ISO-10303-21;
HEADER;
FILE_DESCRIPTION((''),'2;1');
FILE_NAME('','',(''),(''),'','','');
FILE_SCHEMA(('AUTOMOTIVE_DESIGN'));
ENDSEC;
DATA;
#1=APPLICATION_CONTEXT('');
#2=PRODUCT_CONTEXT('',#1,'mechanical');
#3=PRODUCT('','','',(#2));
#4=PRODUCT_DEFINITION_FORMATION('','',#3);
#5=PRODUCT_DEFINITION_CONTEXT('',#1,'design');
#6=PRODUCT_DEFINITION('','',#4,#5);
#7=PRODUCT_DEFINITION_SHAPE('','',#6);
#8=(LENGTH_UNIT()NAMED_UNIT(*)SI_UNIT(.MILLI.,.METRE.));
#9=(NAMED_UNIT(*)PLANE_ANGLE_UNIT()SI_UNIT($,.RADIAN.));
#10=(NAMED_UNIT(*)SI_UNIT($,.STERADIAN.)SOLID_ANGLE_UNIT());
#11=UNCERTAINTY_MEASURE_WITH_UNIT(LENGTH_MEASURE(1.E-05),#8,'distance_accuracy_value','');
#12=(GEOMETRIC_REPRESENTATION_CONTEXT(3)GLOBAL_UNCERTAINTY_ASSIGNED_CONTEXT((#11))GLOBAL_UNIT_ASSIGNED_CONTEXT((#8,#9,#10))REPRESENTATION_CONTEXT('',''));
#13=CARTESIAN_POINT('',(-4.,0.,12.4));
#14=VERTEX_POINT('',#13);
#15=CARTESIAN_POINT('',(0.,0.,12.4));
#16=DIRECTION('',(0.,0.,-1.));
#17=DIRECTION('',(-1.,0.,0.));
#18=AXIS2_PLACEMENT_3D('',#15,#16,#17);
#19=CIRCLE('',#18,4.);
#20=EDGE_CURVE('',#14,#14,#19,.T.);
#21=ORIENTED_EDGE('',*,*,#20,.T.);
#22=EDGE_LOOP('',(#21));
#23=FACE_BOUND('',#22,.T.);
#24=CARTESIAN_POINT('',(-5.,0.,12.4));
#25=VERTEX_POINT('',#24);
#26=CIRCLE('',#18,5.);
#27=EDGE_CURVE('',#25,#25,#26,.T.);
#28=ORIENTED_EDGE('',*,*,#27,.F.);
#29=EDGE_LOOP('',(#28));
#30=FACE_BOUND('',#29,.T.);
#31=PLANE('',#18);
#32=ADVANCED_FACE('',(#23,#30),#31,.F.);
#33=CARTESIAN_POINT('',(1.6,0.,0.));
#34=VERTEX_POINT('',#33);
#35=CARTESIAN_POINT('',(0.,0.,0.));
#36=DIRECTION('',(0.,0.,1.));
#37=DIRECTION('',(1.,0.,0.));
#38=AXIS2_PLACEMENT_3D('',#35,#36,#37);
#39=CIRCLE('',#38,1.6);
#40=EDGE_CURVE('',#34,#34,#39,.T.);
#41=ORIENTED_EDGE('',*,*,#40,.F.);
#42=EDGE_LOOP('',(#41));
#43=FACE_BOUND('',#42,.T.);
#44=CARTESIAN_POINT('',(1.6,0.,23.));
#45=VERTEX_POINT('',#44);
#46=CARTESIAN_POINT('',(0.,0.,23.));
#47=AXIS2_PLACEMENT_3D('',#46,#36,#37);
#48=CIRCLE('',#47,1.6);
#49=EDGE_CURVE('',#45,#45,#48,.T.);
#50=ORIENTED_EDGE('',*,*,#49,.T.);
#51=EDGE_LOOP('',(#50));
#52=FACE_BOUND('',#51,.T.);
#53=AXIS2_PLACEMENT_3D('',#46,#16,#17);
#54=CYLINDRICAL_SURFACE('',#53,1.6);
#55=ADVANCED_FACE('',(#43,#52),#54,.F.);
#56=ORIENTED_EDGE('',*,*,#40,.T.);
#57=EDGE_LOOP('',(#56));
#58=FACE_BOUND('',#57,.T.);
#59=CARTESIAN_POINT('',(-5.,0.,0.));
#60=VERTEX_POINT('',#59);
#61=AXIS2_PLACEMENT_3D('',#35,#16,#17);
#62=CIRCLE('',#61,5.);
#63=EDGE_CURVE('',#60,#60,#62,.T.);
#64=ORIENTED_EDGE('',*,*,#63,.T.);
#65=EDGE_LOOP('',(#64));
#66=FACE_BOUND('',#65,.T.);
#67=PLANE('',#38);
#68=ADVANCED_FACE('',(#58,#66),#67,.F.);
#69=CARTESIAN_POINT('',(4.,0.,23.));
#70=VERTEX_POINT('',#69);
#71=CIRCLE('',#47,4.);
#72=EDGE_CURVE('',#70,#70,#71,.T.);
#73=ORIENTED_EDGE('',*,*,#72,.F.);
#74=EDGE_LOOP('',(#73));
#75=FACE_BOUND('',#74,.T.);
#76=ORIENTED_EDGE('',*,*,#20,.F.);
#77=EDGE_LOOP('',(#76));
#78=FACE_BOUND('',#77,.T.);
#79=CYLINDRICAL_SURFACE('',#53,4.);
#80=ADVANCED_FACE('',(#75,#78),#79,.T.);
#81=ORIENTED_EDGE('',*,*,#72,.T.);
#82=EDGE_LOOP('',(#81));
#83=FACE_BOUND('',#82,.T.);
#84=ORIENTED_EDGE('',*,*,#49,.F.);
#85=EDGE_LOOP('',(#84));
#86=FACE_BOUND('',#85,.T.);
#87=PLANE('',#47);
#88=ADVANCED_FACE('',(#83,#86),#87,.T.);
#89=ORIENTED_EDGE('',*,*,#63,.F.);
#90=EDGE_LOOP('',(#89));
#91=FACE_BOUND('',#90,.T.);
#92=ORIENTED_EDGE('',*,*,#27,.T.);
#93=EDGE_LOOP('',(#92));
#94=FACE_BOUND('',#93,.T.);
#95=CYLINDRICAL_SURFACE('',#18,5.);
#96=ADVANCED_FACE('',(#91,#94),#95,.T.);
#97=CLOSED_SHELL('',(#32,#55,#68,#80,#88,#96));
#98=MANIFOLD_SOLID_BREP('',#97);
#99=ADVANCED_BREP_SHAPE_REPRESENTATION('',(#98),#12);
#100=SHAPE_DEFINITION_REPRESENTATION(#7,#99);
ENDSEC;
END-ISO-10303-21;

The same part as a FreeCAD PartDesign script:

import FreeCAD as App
import Part
import Sketcher
from FreeCAD import Vector

doc = App.newDocument("Part")
params = doc.addObject("Spreadsheet::Sheet", "Params")
for row, (alias, value) in enumerate([
    ("sketch1_diameter", "8 mm"),
    ("sketch1_diameter2", "3.2 mm"),
    ("pad1_length", "23 mm"),
    ("sketch2_diameter", "10 mm"),
    ("sketch2_diameter2", "8 mm"),
    ("pad2_length", "12.4 mm"),
], start=1):
    params.set(f"A{row}", alias)
    params.set(f"B{row}", "=" + value)
    params.setAlias(f"B{row}", alias)

body = doc.addObject("PartDesign::Body", "Body")

# Sketch on XY plane
sketch1 = body.newObject("Sketcher::SketchObject", "Sketch")
sketch1.AttachmentSupport = (doc.getObject("XY_Plane"), [""])
sketch1.MapMode = "FlatFace"
sketch1.addGeometry([
    Part.Circle(Vector(0, 0, 0), Vector(0, 0, 1), 4),
    Part.Circle(Vector(0, 0, 0), Vector(0, 0, 1), 1.6),
], False)
sketch1.addConstraint([
    Sketcher.Constraint("Coincident", 0, 3, -1, 1),
    Sketcher.Constraint("Coincident", 1, 3, -1, 1),
    Sketcher.Constraint("Diameter", 0, 8.0),
    Sketcher.Constraint("Diameter", 1, 3.2),
])
sketch1.setExpression("Constraints[2]", "Params.sketch1_diameter")
sketch1.setExpression("Constraints[3]", "Params.sketch1_diameter2")
pad1 = body.newObject("PartDesign::Pad", "Pad")
pad1.Profile = sketch1
pad1.setExpression("Length", "Params.pad1_length")

# Sketch on XY plane
sketch2 = body.newObject("Sketcher::SketchObject", "Sketch001")
sketch2.AttachmentSupport = (doc.getObject("XY_Plane"), [""])
sketch2.MapMode = "FlatFace"
sketch2.addGeometry([
    Part.Circle(Vector(0, 0, 0), Vector(0, 0, 1), 5),
    Part.Circle(Vector(0, 0, 0), Vector(0, 0, 1), 4),
], False)
sketch2.addConstraint([
    Sketcher.Constraint("Coincident", 0, 3, -1, 1),
    Sketcher.Constraint("Coincident", 1, 3, -1, 1),
    Sketcher.Constraint("Diameter", 0, 10.0),
    Sketcher.Constraint("Diameter", 1, 8.0),
])
sketch2.setExpression("Constraints[2]", "Params.sketch2_diameter")
sketch2.setExpression("Constraints[3]", "Params.sketch2_diameter2")
pad2 = body.newObject("PartDesign::Pad", "Pad001")
pad2.Profile = sketch2
pad2.setExpression("Length", "Params.pad2_length")

doc.recompute()
